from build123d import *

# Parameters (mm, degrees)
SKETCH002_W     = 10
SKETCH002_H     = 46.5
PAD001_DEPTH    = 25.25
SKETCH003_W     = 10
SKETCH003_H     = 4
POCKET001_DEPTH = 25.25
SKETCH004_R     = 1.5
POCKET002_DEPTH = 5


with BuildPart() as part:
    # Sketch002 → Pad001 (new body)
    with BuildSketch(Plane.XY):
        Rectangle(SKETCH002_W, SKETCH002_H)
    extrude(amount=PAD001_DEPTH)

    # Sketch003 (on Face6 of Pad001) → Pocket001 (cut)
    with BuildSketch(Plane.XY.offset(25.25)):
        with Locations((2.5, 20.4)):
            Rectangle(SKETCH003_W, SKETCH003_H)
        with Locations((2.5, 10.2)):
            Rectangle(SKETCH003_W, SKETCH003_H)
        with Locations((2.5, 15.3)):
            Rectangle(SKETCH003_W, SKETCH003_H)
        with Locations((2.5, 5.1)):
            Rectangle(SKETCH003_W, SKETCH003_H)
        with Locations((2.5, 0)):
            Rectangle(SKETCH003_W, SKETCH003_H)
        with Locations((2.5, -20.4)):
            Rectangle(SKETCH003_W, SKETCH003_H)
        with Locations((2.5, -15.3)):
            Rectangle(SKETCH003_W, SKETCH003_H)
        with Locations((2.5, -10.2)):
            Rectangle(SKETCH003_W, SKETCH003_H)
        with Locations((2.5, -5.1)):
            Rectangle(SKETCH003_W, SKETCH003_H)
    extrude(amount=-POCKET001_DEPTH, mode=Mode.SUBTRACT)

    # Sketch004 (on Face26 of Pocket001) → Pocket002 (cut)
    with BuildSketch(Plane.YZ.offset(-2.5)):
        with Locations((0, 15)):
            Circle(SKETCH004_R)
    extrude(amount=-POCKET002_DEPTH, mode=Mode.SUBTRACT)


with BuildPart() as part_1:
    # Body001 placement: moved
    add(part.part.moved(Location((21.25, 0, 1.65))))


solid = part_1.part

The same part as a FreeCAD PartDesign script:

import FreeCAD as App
import Part
import Sketcher

V = App.Vector

doc = App.newDocument("Part")
params = doc.addObject("Spreadsheet::Sheet", "Params")
for row, (alias, value) in enumerate([
    ("sketch1_width", "10 mm"),
    ("sketch1_height", "46.5 mm"),
    ("pad1_length", "25.25 mm"),
    ("sketch2_width", "10 mm"),
    ("sketch2_height", "4 mm"),
    ("pocket1_length", "25.25 mm"),
    ("sketch3_diameter", "3 mm"),
    ("pocket2_length", "5 mm"),
], start=1):
    params.set(f"A{row}", alias)
    params.set(f"B{row}", "=" + value)
    params.setAlias(f"B{row}", alias)

body = doc.addObject("PartDesign::Body", "Body")

# Sketch on XY plane
sketch1 = body.newObject("Sketcher::SketchObject", "Sketch")
sketch1.AttachmentSupport = (doc.getObject("XY_Plane"), [""])
sketch1.MapMode = "FlatFace"
sketch1.addGeometry(Part.LineSegment(V(-5, 23.25, 0), V(-5, -23.25, 0)), False)
sketch1.addGeometry(Part.LineSegment(V(-5, -23.25, 0), V(5, -23.25, 0)), False)
sketch1.addGeometry(Part.LineSegment(V(5, -23.25, 0), V(5, 23.25, 0)), False)
sketch1.addGeometry(Part.LineSegment(V(5, 23.25, 0), V(-5, 23.25, 0)), False)
sketch1.addConstraint(Sketcher.Constraint("Coincident", 0, 2, 1, 1))
sketch1.addConstraint(Sketcher.Constraint("Coincident", 1, 2, 2, 1))
sketch1.addConstraint(Sketcher.Constraint("Coincident", 2, 2, 3, 1))
sketch1.addConstraint(Sketcher.Constraint("Coincident", 3, 2, 0, 1))
sketch1.addConstraint(Sketcher.Constraint("Vertical", 0))
sketch1.addConstraint(Sketcher.Constraint("Horizontal", 1))
sketch1.addConstraint(Sketcher.Constraint("Vertical", 2))
sketch1.addConstraint(Sketcher.Constraint("Horizontal", 3))
sketch1.addConstraint(Sketcher.Constraint("Symmetric", 0, 2, 2, 2, -1, 1))
sketch1.addConstraint(Sketcher.Constraint("DistanceX", 1, 1, 1, 2, 10.0))
sketch1.addConstraint(Sketcher.Constraint("DistanceY", 0, 2, 0, 1, 46.5))
sketch1.setExpression("Constraints[9]", "Params.sketch1_width")
sketch1.setExpression("Constraints[10]", "Params.sketch1_height")
pad1 = body.newObject("PartDesign::Pad", "Pad")
pad1.Profile = sketch1
pad1.setExpression("Length", "Params.pad1_length")

# Sketch on XY plane
sketch2 = body.newObject("Sketcher::SketchObject", "Sketch001")
sketch2.AttachmentSupport = (doc.getObject("XY_Plane"), [""])
sketch2.MapMode = "FlatFace"
sketch2.AttachmentOffset = App.Placement(V(0, 0, 25.25), App.Rotation())
sketch2.addGeometry(Part.LineSegment(V(-2.5, 22.4, 0), V(-2.5, 18.4, 0)), False)
sketch2.addGeometry(Part.LineSegment(V(-2.5, 18.4, 0), V(7.5, 18.4, 0)), False)
sketch2.addGeometry(Part.LineSegment(V(7.5, 18.4, 0), V(7.5, 22.4, 0)), False)
sketch2.addGeometry(Part.LineSegment(V(7.5, 22.4, 0), V(-2.5, 22.4, 0)), False)
sketch2.addGeometry(Part.LineSegment(V(-2.5, 12.2, 0), V(-2.5, 8.2, 0)), False)
sketch2.addGeometry(Part.LineSegment(V(-2.5, 8.2, 0), V(7.5, 8.2, 0)), False)
sketch2.addGeometry(Part.LineSegment(V(7.5, 8.2, 0), V(7.5, 12.2, 0)), False)
sketch2.addGeometry(Part.LineSegment(V(7.5, 12.2, 0), V(-2.5, 12.2, 0)), False)
sketch2.addGeometry(Part.LineSegment(V(-2.5, 17.3, 0), V(-2.5, 13.3, 0)), False)
sketch2.addGeometry(Part.LineSegment(V(-2.5, 13.3, 0), V(7.5, 13.3, 0)), False)
sketch2.addGeometry(Part.LineSegment(V(7.5, 13.3, 0), V(7.5, 17.3, 0)), False)
sketch2.addGeometry(Part.LineSegment(V(7.5, 17.3, 0), V(-2.5, 17.3, 0)), False)
sketch2.addGeometry(Part.LineSegment(V(-2.5, 7.1, 0), V(-2.5, 3.1, 0)), False)
sketch2.addGeometry(Part.LineSegment(V(-2.5, 3.1, 0), V(7.5, 3.1, 0)), False)
sketch2.addGeometry(Part.LineSegment(V(7.5, 3.1, 0), V(7.5, 7.1, 0)), False)
sketch2.addGeometry(Part.LineSegment(V(7.5, 7.1, 0), V(-2.5, 7.1, 0)), False)
sketch2.addGeometry(Part.LineSegment(V(-2.5, 2, 0), V(-2.5, -2, 0)), False)
sketch2.addGeometry(Part.LineSegment(V(-2.5, -2, 0), V(7.5, -2, 0)), False)
sketch2.addGeometry(Part.LineSegment(V(7.5, -2, 0), V(7.5, 2, 0)), False)
sketch2.addGeometry(Part.LineSegment(V(7.5, 2, 0), V(-2.5, 2, 0)), False)
sketch2.addGeometry(Part.LineSegment(V(-2.5, -18.4, 0), V(-2.5, -22.4, 0)), False)
sketch2.addGeometry(Part.LineSegment(V(-2.5, -22.4, 0), V(7.5, -22.4, 0)), False)
sketch2.addGeometry(Part.LineSegment(V(7.5, -22.4, 0), V(7.5, -18.4, 0)), False)
sketch2.addGeometry(Part.LineSegment(V(7.5, -18.4, 0), V(-2.5, -18.4, 0)), False)
sketch2.addGeometry(Part.LineSegment(V(-2.5, -13.3, 0), V(-2.5, -17.3, 0)), False)
sketch2.addGeometry(Part.LineSegment(V(-2.5, -17.3, 0), V(7.5, -17.3, 0)), False)
sketch2.addGeometry(Part.LineSegment(V(7.5, -17.3, 0), V(7.5, -13.3, 0)), False)
sketch2.addGeometry(Part.LineSegment(V(7.5, -13.3, 0), V(-2.5, -13.3, 0)), False)
sketch2.addGeometry(Part.LineSegment(V(-2.5, -8.2, 0), V(-2.5, -12.2, 0)), False)
sketch2.addGeometry(Part.LineSegment(V(-2.5, -12.2, 0), V(7.5, -12.2, 0)), False)
sketch2.addGeometry(Part.LineSegment(V(7.5, -12.2, 0), V(7.5, -8.2, 0)), False)
sketch2.addGeometry(Part.LineSegment(V(7.5, -8.2, 0), V(-2.5, -8.2, 0)), False)
sketch2.addGeometry(Part.LineSegment(V(-2.5, -3.1, 0), V(-2.5, -7.1, 0)), False)
sketch2.addGeometry(Part.LineSegment(V(-2.5, -7.1, 0), V(7.5, -7.1, 0)), False)
sketch2.addGeometry(Part.LineSegment(V(7.5, -7.1, 0), V(7.5, -3.1, 0)), False)
sketch2.addGeometry(Part.LineSegment(V(7.5, -3.1, 0), V(-2.5, -3.1, 0)), False)
sketch2.addConstraint(Sketcher.Constraint("Coincident", 0, 2, 1, 1))
sketch2.addConstraint(Sketcher.Constraint("Coincident", 1, 2, 2, 1))
sketch2.addConstraint(Sketcher.Constraint("Coincident", 2, 2, 3, 1))
sketch2.addConstraint(Sketcher.Constraint("Coincident", 3, 2, 0, 1))
sketch2.addConstraint(Sketcher.Constraint("Coincident", 4, 2, 5, 1))
sketch2.addConstraint(Sketcher.Constraint("Coincident", 5, 2, 6, 1))
sketch2.addConstraint(Sketcher.Constraint("Coincident", 6, 2, 7, 1))
sketch2.addConstraint(Sketcher.Constraint("Coincident", 7, 2, 4, 1))
sketch2.addConstraint(Sketcher.Constraint("Coincident", 8, 2, 9, 1))
sketch2.addConstraint(Sketcher.Constraint("Coincident", 9, 2, 10, 1))
sketch2.addConstraint(Sketcher.Constraint("Coincident", 10, 2, 11, 1))
sketch2.addConstraint(Sketcher.Constraint("Coincident", 11, 2, 8, 1))
sketch2.addConstraint(Sketcher.Constraint("Coincident", 12, 2, 13, 1))
sketch2.addConstraint(Sketcher.Constraint("Coincident", 13, 2, 14, 1))
sketch2.addConstraint(Sketcher.Constraint("Coincident", 14, 2, 15, 1))
sketch2.addConstraint(Sketcher.Constraint("Coincident", 15, 2, 12, 1))
sketch2.addConstraint(Sketcher.Constraint("Coincident", 16, 2, 17, 1))
sketch2.addConstraint(Sketcher.Constraint("Coincident", 17, 2, 18, 1))
sketch2.addConstraint(Sketcher.Constraint("Coincident", 18, 2, 19, 1))
sketch2.addConstraint(Sketcher.Constraint("Coincident", 19, 2, 16, 1))
sketch2.addConstraint(Sketcher.Constraint("Coincident", 20, 2, 21, 1))
sketch2.addConstraint(Sketcher.Constraint("Coincident", 21, 2, 22, 1))
sketch2.addConstraint(Sketcher.Constraint("Coincident", 22, 2, 23, 1))
sketch2.addConstraint(Sketcher.Constraint("Coincident", 23, 2, 20, 1))
sketch2.addConstraint(Sketcher.Constraint("Coincident", 24, 2, 25, 1))
sketch2.addConstraint(Sketcher.Constraint("Coincident", 25, 2, 26, 1))
sketch2.addConstraint(Sketcher.Constraint("Coincident", 26, 2, 27, 1))
sketch2.addConstraint(Sketcher.Constraint("Coincident", 27, 2, 24, 1))
sketch2.addConstraint(Sketcher.Constraint("Coincident", 28, 2, 29, 1))
sketch2.addConstraint(Sketcher.Constraint("Coincident", 29, 2, 30, 1))
sketch2.addConstraint(Sketcher.Constraint("Coincident", 30, 2, 31, 1))
sketch2.addConstraint(Sketcher.Constraint("Coincident", 31, 2, 28, 1))
sketch2.addConstraint(Sketcher.Constraint("Coincident", 32, 2, 33, 1))
sketch2.addConstraint(Sketcher.Constraint("Coincident", 33, 2, 34, 1))
sketch2.addConstraint(Sketcher.Constraint("Coincident", 34, 2, 35, 1))
sketch2.addConstraint(Sketcher.Constraint("Coincident", 35, 2, 32, 1))
sketch2.addConstraint(Sketcher.Constraint("Vertical", 0))
sketch2.addConstraint(Sketcher.Constraint("Horizontal", 1))
sketch2.addConstraint(Sketcher.Constraint("Vertical", 2))
sketch2.addConstraint(Sketcher.Constraint("Horizontal", 3))
sketch2.addConstraint(Sketcher.Constraint("Vertical", 4))
sketch2.addConstraint(Sketcher.Constraint("Horizontal", 5))
sketch2.addConstraint(Sketcher.Constraint("Vertical", 6))
sketch2.addConstraint(Sketcher.Constraint("Horizontal", 7))
sketch2.addConstraint(Sketcher.Constraint("Vertical", 8))
sketch2.addConstraint(Sketcher.Constraint("Horizontal", 9))
sketch2.addConstraint(Sketcher.Constraint("Vertical", 10))
sketch2.addConstraint(Sketcher.Constraint("Horizontal", 11))
sketch2.addConstraint(Sketcher.Constraint("Vertical", 12))
sketch2.addConstraint(Sketcher.Constraint("Horizontal", 13))
sketch2.addConstraint(Sketcher.Constraint("Vertical", 14))
sketch2.addConstraint(Sketcher.Constraint("Horizontal", 15))
sketch2.addConstraint(Sketcher.Constraint("Vertical", 16))
sketch2.addConstraint(Sketcher.Constraint("Horizontal", 17))
sketch2.addConstraint(Sketcher.Constraint("Vertical", 18))
sketch2.addConstraint(Sketcher.Constraint("Horizontal", 19))
sketch2.addConstraint(Sketcher.Constraint("Vertical", 20))
sketch2.addConstraint(Sketcher.Constraint("Horizontal", 21))
sketch2.addConstraint(Sketcher.Constraint("Vertical", 22))
sketch2.addConstraint(Sketcher.Constraint("Horizontal", 23))
sketch2.addConstraint(Sketcher.Constraint("Vertical", 24))
sketch2.addConstraint(Sketcher.Constraint("Horizontal", 25))
sketch2.addConstraint(Sketcher.Constraint("Vertical", 26))
sketch2.addConstraint(Sketcher.Constraint("Horizontal", 27))
sketch2.addConstraint(Sketcher.Constraint("Vertical", 28))
sketch2.addConstraint(Sketcher.Constraint("Horizontal", 29))
sketch2.addConstraint(Sketcher.Constraint("Vertical", 30))
sketch2.addConstraint(Sketcher.Constraint("Horizontal", 31))
sketch2.addConstraint(Sketcher.Constraint("Vertical", 32))
sketch2.addConstraint(Sketcher.Constraint("Horizontal", 33))
sketch2.addConstraint(Sketcher.Constraint("Vertical", 34))
sketch2.addConstraint(Sketcher.Constraint("Horizontal", 35))
sketch2.addConstraint(Sketcher.Constraint("Symmetric", 3, 2, 20, 2, -1))
sketch2.addConstraint(Sketcher.Constraint("Symmetric", 1, 2, 22, 2, -1))
sketch2.addConstraint(Sketcher.Constraint("Symmetric", 11, 2, 24, 2, -1))
sketch2.addConstraint(Sketcher.Constraint("Symmetric", 9, 2, 26, 2, -1))
sketch2.addConstraint(Sketcher.Constraint("Symmetric", 7, 2, 28, 2, -1))
sketch2.addConstraint(Sketcher.Constraint("Symmetric", 5, 2, 30, 2, -1))
sketch2.addConstraint(Sketcher.Constraint("Symmetric", 15, 2, 32, 2, -1))
sketch2.addConstraint(Sketcher.Constraint("Symmetric", 13, 2, 34, 2, -1))
sketch2.addConstraint(Sketcher.Constraint("Vertical", 3, 2, 4, 2))
sketch2.addConstraint(Sketcher.Constraint("Vertical", 2, 2, 5, 2))
sketch2.addConstraint(Sketcher.Constraint("Vertical", 7, 2, 8, 2))
sketch2.addConstraint(Sketcher.Constraint("Vertical", 6, 2, 9, 2))
sketch2.addConstraint(Sketcher.Constraint("Vertical", 11, 2, 12, 2))
sketch2.addConstraint(Sketcher.Constraint("Vertical", 10, 2, 13, 2))
sketch2.addConstraint(Sketcher.Constraint("Vertical", 15, 2, 16, 2))
sketch2.addConstraint(Sketcher.Constraint("Vertical", 14, 2, 17, 2))
sketch2.addConstraint(Sketcher.Constraint("Equal", 2, 4))
sketch2.addConstraint(Sketcher.Constraint("Equal", 6, 8))
sketch2.addConstraint(Sketcher.Constraint("Equal", 10, 12))
sketch2.addConstraint(Sketcher.Constraint("Equal", 14, 16))
sketch2.addConstraint(Sketcher.Constraint("DistanceX", 1, 1, 1, 2, 10.0))
sketch2.addConstraint(Sketcher.Constraint("DistanceY", 0, 2, 0, 1, 4.0))
sketch2.addConstraint(Sketcher.Constraint("DistanceY", 16, 2, -1, 1, 2.0))
sketch2.addConstraint(Sketcher.Constraint("DistanceX", 0, 2, -1, 1, 2.5))
sketch2.addConstraint(Sketcher.Constraint("DistanceY", -1, 1, 0, 2, 18.4))
sketch2.addConstraint(Sketcher.Constraint("DistanceY", -1, 1, 4, 2, 8.2))
sketch2.addConstraint(Sketcher.Constraint("DistanceY", -1, 1, 8, 2, 13.3))
sketch2.addConstraint(Sketcher.Constraint("DistanceY", -1, 1, 12, 2, 3.1))
sketch2.setExpression("Constraints[92]", "Params.sketch2_width")
sketch2.setExpression("Constraints[93]", "Params.sketch2_height")
pocket1 = body.newObject("PartDesign::Pocket", "Pocket")
pocket1.Profile = sketch2
pocket1.setExpression("Length", "Params.pocket1_length")

# Sketch on YZ plane
sketch3 = body.newObject("Sketcher::SketchObject", "Sketch002")
sketch3.AttachmentSupport = (doc.getObject("YZ_Plane"), [""])
sketch3.MapMode = "FlatFace"
sketch3.AttachmentOffset = App.Placement(V(0, 0, -2.5), App.Rotation())
sketch3.addGeometry(Part.Circle(V(0, 15, 0), V(0, 0, 1), 1.5), False)
sketch3.addConstraint(Sketcher.Constraint("PointOnObject", 0, 3, -2))
sketch3.addConstraint(Sketcher.Constraint("Diameter", 0, 3.0))
sketch3.addConstraint(Sketcher.Constraint("DistanceY", -1, 1, 0, 3, 15.0))
sketch3.setExpression("Constraints[1]", "Params.sketch3_diameter")
pocket2 = body.newObject("PartDesign::Pocket", "Pocket001")
pocket2.Profile = sketch3
pocket2.setExpression("Length", "Params.pocket2_length")
body2 = doc.addObject("PartDesign::Body", "Body001")
doc.recompute()

body.Placement = App.Placement(V(21.25, 0, 1.65), App.Rotation(V(0, 0, 1), 0))
boolean = body2.newObject("PartDesign::Boolean", "Boolean")
boolean.Type = "Fuse"
boolean.addObjects([body])

doc.recompute()
